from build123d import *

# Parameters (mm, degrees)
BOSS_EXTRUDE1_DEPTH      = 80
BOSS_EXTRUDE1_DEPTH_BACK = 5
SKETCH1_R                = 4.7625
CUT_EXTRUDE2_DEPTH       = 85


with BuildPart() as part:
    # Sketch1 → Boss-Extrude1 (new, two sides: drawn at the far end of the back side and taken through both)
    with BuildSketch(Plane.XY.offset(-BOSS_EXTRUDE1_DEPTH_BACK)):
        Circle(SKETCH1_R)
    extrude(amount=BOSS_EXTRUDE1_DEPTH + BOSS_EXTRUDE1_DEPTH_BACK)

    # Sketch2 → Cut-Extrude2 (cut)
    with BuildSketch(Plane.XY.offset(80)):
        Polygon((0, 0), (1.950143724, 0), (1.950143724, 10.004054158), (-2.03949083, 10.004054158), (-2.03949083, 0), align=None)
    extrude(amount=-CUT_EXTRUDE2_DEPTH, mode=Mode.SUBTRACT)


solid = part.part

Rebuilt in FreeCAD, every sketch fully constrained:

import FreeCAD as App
import Part
import Sketcher

doc = App.newDocument("Part")
params = doc.addObject("Spreadsheet::Sheet", "Params")
for row, (alias, value) in enumerate([
    ("pad1_length", "80 mm"),
    ("pad1_length2", "5 mm"),
    ("pocket1_length", "85 mm"),
], start=1):
    params.set(f"A{row}", alias)
    params.set(f"B{row}", "=" + value)
    params.setAlias(f"B{row}", alias)

body = doc.addObject("PartDesign::Body", "Body")

sketch1 = body.newObject("Sketcher::SketchObject", "Sketch")
sketch1.AttachmentSupport = (doc.getObject("XY_Plane"), [""])
sketch1.MapMode = "FlatFace"
sketch1.addGeometry(Part.Circle(App.Vector(0, 0, 0), App.Vector(0, 0, 1), 4.7625), False)
sketch1.addConstraint(Sketcher.Constraint("Coincident", 0, 3, -1, 1))
sketch1.addConstraint(Sketcher.Constraint("Diameter", 0, 9.525))
pad1 = body.newObject("PartDesign::Pad", "Pad")
pad1.Profile = sketch1
pad1.Type = "TwoLengths"
pad1.setExpression("Length", "Params.pad1_length")
pad1.setExpression("Length2", "Params.pad1_length2")

sketch2 = body.newObject("Sketcher::SketchObject", "Sketch001")
sketch2.AttachmentSupport = (doc.getObject("XY_Plane"), [""])
sketch2.MapMode = "FlatFace"
sketch2.AttachmentOffset = App.Placement(App.Vector(0, 0, 80), App.Rotation())
sketch2.addGeometry(Part.LineSegment(App.Vector(1.950144, 0, 0), App.Vector(1.950144, 10.004054, 0)), False)
sketch2.addGeometry(Part.LineSegment(App.Vector(1.950144, 10.004054, 0), App.Vector(-2.039491, 10.004054, 0)), False)
sketch2.addGeometry(Part.LineSegment(App.Vector(-2.039491, 10.004054, 0), App.Vector(-2.039491, 0, 0)), False)
sketch2.addGeometry(Part.LineSegment(App.Vector(-2.039491, 0, 0), App.Vector(1.950144, 0, 0)), False)
sketch2.addConstraint(Sketcher.Constraint("Coincident", 0, 2, 1, 1))
sketch2.addConstraint(Sketcher.Constraint("Coincident", 1, 2, 2, 1))
sketch2.addConstraint(Sketcher.Constraint("Coincident", 2, 2, 3, 1))
sketch2.addConstraint(Sketcher.Constraint("Coincident", 3, 2, 0, 1))
sketch2.addConstraint(Sketcher.Constraint("Vertical", 0))
sketch2.addConstraint(Sketcher.Constraint("Horizontal", 1))
sketch2.addConstraint(Sketcher.Constraint("Vertical", 2))
sketch2.addConstraint(Sketcher.Constraint("Horizontal", 3))
sketch2.addConstraint(Sketcher.Constraint("PointOnObject", 2, 2, -1))
sketch2.addConstraint(Sketcher.Constraint("DistanceX", 1, 2, 1, 1, 3.989635))
sketch2.addConstraint(Sketcher.Constraint("DistanceY", 0, 1, 0, 2, 10.004054))
sketch2.addConstraint(Sketcher.Constraint("DistanceX", 1, 2, -1, 1, 2.039491))
pocket1 = body.newObject("PartDesign::Pocket", "Pocket")
pocket1.Profile = sketch2
pocket1.setExpression("Length", "Params.pocket1_length")

doc.recompute()
